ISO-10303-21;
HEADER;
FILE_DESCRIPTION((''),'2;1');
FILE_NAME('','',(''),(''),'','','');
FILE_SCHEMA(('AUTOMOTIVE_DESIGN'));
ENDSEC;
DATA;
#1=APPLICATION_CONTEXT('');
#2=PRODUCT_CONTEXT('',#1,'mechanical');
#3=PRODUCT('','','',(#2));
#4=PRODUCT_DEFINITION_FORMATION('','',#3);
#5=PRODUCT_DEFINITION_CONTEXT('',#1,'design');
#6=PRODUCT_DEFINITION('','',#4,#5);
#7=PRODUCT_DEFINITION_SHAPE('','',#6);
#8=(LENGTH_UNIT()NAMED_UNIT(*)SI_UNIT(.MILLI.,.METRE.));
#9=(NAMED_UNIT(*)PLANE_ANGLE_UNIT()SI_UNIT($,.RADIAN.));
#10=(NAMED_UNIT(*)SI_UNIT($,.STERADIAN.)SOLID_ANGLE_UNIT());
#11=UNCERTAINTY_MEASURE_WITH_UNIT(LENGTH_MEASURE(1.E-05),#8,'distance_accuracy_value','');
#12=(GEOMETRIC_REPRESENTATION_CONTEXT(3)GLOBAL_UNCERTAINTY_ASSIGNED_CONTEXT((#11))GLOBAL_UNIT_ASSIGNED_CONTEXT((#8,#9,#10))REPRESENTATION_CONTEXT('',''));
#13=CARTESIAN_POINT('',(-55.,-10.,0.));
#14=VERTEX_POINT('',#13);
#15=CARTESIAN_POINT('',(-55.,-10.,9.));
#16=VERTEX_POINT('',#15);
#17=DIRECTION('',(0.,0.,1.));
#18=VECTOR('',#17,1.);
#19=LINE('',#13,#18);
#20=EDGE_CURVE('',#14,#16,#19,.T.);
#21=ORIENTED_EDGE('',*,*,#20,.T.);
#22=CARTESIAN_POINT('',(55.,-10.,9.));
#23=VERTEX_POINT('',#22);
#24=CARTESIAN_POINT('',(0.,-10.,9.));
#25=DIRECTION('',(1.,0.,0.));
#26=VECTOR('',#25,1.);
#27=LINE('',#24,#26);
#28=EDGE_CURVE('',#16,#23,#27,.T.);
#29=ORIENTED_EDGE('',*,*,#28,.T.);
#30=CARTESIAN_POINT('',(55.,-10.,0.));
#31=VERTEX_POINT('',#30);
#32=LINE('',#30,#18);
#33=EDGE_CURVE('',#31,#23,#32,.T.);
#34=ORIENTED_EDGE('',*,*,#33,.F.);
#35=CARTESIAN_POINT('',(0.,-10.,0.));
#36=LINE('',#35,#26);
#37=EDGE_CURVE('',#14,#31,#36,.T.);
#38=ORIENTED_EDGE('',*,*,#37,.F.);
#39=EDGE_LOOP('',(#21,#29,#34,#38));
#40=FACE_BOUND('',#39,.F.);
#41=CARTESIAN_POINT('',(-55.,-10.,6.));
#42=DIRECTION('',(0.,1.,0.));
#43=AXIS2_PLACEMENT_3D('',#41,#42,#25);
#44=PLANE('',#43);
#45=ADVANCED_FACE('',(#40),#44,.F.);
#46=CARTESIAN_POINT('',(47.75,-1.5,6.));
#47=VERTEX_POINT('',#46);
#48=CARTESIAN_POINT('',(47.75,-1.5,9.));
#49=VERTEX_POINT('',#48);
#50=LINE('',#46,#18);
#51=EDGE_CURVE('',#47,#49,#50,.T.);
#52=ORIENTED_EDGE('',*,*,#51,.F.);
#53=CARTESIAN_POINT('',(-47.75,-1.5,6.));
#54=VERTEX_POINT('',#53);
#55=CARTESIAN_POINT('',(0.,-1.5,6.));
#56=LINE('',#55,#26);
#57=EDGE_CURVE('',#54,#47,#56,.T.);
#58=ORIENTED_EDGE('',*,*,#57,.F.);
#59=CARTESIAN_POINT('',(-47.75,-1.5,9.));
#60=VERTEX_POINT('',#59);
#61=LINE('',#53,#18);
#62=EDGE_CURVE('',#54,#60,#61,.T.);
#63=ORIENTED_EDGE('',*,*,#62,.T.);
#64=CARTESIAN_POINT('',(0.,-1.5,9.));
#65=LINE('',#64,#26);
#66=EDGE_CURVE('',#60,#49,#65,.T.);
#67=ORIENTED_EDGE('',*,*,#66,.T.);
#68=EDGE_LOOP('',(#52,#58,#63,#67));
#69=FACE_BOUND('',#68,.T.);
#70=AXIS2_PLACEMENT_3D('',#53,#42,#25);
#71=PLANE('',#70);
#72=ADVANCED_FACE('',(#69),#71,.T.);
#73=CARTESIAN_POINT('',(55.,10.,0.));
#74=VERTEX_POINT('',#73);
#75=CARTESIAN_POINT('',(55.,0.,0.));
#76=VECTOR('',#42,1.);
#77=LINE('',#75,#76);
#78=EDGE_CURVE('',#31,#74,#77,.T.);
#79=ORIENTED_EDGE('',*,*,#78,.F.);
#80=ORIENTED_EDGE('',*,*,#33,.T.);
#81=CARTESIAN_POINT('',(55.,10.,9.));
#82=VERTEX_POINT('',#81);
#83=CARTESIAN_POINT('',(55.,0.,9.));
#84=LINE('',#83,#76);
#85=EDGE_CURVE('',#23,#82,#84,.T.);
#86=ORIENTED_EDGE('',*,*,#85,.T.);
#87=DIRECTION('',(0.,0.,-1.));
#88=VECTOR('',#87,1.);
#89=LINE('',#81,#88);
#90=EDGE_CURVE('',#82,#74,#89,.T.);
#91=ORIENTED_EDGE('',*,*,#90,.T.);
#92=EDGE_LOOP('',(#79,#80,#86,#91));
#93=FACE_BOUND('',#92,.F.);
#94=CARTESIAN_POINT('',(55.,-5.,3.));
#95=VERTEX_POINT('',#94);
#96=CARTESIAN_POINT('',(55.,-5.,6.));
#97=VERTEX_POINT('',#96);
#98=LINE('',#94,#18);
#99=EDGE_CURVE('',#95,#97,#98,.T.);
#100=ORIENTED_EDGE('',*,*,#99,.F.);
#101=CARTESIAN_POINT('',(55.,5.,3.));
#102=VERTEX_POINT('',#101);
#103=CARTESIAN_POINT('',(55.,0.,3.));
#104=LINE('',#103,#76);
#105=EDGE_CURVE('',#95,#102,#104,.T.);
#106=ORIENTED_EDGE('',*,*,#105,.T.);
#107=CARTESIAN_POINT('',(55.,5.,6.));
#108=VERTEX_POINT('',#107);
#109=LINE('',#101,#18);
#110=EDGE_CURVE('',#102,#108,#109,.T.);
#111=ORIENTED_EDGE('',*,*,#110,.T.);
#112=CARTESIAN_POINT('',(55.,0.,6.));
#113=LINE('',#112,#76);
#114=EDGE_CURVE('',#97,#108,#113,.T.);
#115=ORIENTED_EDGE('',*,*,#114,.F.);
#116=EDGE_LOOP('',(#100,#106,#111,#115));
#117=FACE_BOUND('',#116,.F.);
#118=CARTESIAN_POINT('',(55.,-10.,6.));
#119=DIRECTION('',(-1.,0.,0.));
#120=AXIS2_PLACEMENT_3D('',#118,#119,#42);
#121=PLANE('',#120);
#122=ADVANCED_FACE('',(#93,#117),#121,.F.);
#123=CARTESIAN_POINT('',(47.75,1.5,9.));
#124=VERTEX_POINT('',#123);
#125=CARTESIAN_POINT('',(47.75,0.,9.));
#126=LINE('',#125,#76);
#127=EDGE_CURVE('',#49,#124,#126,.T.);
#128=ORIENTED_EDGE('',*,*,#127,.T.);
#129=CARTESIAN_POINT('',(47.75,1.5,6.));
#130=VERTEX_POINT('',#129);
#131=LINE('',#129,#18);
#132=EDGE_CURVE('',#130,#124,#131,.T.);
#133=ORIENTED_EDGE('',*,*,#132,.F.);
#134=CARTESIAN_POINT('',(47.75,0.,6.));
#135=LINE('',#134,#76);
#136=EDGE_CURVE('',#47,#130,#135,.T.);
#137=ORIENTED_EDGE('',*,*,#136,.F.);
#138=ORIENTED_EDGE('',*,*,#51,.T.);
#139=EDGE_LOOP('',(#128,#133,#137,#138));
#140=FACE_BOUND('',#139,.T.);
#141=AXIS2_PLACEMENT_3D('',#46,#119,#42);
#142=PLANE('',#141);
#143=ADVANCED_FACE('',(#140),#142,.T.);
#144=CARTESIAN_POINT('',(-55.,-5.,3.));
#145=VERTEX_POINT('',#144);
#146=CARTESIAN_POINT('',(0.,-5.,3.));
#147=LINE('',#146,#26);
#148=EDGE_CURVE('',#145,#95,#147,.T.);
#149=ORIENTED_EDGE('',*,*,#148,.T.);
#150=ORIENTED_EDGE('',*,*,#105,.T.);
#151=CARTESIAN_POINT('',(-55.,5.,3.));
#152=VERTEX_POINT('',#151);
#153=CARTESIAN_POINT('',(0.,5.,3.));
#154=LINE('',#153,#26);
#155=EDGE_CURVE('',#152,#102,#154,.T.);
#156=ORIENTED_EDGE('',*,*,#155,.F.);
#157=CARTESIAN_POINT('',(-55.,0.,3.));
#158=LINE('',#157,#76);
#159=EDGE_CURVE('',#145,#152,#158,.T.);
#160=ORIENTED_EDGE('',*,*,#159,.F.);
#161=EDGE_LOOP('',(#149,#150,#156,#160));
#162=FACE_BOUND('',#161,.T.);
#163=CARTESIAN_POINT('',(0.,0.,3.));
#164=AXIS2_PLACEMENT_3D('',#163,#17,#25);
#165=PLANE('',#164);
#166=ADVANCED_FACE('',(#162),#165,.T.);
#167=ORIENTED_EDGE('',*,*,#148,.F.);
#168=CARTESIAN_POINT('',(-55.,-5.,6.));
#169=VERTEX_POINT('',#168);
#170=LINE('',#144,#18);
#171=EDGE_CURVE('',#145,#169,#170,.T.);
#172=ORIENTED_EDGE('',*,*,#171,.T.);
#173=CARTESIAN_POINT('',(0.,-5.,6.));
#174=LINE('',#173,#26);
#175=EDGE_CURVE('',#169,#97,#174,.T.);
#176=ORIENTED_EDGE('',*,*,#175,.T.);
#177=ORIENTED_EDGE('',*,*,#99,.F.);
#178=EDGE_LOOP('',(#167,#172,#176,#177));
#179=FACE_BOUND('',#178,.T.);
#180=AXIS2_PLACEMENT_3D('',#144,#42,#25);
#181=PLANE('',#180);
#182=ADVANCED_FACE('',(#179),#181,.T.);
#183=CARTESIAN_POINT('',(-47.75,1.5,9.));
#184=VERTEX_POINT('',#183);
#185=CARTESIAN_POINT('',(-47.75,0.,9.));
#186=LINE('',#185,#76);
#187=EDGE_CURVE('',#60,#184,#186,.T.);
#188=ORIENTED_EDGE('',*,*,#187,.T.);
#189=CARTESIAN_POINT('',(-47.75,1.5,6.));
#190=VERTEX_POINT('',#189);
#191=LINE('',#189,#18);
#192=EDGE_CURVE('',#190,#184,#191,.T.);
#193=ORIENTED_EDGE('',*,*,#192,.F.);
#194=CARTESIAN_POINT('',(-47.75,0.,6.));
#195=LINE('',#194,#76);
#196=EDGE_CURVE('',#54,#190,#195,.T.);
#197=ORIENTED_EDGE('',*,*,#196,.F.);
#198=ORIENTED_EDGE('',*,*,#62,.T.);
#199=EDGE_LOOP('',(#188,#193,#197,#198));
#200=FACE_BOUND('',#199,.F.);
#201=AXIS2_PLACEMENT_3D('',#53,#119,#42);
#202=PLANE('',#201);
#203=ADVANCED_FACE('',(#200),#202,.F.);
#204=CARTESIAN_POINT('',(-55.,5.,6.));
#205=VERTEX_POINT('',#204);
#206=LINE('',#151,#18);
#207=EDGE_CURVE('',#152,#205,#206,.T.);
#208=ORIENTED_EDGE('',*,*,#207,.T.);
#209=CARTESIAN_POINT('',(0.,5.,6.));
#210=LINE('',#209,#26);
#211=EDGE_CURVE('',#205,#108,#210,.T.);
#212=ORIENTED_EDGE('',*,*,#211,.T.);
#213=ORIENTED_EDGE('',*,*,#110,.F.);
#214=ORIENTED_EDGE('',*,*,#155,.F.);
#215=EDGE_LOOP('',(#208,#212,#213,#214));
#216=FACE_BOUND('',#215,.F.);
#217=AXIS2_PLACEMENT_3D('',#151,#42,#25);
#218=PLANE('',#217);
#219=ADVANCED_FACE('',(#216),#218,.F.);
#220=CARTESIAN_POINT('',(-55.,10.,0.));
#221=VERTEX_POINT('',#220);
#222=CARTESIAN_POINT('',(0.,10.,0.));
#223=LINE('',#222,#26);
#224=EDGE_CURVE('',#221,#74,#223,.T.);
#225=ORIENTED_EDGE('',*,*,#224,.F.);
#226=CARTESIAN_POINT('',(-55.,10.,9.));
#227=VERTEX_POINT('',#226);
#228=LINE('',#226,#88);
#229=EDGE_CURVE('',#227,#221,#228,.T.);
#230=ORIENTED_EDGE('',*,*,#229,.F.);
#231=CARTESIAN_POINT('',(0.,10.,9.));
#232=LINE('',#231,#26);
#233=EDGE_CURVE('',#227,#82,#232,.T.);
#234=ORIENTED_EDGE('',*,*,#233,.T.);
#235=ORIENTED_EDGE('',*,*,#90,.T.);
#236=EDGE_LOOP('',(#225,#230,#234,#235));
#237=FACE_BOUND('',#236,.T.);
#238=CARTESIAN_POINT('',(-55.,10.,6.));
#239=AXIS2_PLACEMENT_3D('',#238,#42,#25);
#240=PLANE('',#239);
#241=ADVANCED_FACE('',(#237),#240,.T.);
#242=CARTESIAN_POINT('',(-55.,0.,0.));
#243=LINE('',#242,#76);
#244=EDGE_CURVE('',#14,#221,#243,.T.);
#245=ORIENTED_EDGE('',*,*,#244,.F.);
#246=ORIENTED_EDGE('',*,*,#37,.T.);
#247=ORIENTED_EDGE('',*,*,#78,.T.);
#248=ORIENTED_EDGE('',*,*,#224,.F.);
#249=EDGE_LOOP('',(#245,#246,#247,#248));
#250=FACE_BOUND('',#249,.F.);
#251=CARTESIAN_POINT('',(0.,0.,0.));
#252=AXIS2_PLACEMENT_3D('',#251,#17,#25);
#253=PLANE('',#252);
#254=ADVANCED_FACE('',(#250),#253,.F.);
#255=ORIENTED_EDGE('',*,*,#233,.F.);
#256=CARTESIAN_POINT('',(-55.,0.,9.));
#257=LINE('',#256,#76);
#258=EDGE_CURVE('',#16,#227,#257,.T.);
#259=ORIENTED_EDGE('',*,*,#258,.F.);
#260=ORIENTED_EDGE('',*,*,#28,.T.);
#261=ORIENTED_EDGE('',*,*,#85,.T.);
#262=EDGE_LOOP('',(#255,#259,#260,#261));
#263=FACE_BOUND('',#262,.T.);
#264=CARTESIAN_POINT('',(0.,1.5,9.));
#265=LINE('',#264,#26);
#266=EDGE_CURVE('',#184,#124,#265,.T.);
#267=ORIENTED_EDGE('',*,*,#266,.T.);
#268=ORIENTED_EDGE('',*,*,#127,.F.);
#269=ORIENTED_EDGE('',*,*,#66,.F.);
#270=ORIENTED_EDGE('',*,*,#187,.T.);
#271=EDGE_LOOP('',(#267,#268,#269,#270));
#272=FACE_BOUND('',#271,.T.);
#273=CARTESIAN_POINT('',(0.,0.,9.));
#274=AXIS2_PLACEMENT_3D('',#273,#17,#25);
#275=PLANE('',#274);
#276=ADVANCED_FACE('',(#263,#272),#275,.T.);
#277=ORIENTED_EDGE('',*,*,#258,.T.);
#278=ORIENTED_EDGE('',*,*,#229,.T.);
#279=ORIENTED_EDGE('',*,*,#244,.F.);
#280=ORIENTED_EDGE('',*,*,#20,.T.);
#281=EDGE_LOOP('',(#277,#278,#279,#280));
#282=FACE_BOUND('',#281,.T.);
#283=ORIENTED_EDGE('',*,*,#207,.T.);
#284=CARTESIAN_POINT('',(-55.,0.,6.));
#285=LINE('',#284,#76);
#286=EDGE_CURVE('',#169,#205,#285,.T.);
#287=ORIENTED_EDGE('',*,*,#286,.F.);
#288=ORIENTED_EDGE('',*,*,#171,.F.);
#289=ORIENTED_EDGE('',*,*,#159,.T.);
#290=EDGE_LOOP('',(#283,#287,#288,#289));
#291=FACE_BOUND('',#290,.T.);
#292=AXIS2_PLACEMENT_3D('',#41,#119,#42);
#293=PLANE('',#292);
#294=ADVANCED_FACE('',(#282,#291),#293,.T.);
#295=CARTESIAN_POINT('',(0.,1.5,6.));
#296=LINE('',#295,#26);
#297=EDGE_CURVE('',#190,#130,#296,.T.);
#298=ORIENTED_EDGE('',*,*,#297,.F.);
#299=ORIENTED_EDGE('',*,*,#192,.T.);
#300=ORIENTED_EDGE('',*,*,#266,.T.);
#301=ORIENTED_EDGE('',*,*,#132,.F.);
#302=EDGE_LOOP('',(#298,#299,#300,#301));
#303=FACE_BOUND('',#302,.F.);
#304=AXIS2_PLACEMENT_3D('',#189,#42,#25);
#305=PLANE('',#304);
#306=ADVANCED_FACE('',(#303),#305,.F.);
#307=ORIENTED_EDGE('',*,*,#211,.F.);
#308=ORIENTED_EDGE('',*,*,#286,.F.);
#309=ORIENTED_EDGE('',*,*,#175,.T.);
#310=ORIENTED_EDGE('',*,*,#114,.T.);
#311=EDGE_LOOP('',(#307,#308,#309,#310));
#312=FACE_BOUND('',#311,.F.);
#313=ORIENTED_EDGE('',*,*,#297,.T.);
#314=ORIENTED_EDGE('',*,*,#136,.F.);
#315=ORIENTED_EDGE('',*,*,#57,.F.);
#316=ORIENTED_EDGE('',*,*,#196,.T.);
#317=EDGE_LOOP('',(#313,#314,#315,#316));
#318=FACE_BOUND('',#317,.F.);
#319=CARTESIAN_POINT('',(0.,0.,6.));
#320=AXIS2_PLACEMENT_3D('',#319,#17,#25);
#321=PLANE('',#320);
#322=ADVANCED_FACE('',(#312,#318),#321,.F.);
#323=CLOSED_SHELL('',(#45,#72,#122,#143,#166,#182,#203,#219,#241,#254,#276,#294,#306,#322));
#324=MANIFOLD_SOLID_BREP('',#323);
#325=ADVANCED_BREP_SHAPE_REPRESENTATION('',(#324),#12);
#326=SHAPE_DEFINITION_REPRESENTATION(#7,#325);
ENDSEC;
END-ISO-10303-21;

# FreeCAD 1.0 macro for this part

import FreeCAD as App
import Part
import Sketcher

V = App.Vector
Q = App.Units.Quantity

doc = App.newDocument("Part")
body = doc.addObject("PartDesign::Body", "Body")

# Sketch on XY plane
sketch1 = body.newObject("Sketcher::SketchObject", "Sketch")
sketch1.AttachmentSupport = (doc.getObject("XY_Plane"), [""])
sketch1.MapMode = "FlatFace"
sketch1.addGeometry(Part.LineSegment(V(-55, 10, 0), V(-55, -10, 0)), False)
sketch1.addGeometry(Part.LineSegment(V(-55, -10, 0), V(55, -10, 0)), False)
sketch1.addGeometry(Part.LineSegment(V(55, -10, 0), V(55, 10, 0)), False)
sketch1.addGeometry(Part.LineSegment(V(55, 10, 0), V(-55, 10, 0)), False)
sketch1.addConstraint(Sketcher.Constraint("Coincident", 0, 2, 1, 1))
sketch1.addConstraint(Sketcher.Constraint("Coincident", 1, 2, 2, 1))
sketch1.addConstraint(Sketcher.Constraint("Coincident", 2, 2, 3, 1))
sketch1.addConstraint(Sketcher.Constraint("Coincident", 3, 2, 0, 1))
sketch1.addConstraint(Sketcher.Constraint("Vertical", 0))
sketch1.addConstraint(Sketcher.Constraint("Horizontal", 1))
sketch1.addConstraint(Sketcher.Constraint("Vertical", 2))
sketch1.addConstraint(Sketcher.Constraint("Horizontal", 3))
sketch1.addConstraint(Sketcher.Constraint("Symmetric", 0, 2, 2, 2, -1, 1))
sketch1.addConstraint(Sketcher.Constraint("DistanceX", 1, 1, 1, 2, Q("110 mm")))
sketch1.addConstraint(Sketcher.Constraint("DistanceY", 0, 2, 0, 1, Q("20 mm")))
pad1 = body.newObject("PartDesign::Pad", "Pad")
pad1.Profile = sketch1
pad1.Length = 3

# Sketch on XY plane
sketch2 = body.newObject("Sketcher::SketchObject", "Sketch001")
sketch2.AttachmentSupport = (doc.getObject("XY_Plane"), [""])
sketch2.MapMode = "FlatFace"
sketch2.AttachmentOffset = App.Placement(V(0, 0, 3), App.Rotation())
sketch2.addGeometry(Part.LineSegment(V(-55, 10, 0), V(-55, 5, 0)), False)
sketch2.addGeometry(Part.LineSegment(V(-55, 5, 0), V(55, 5, 0)), False)
sketch2.addGeometry(Part.LineSegment(V(55, 5, 0), V(55, 10, 0)), False)
sketch2.addGeometry(Part.LineSegment(V(55, 10, 0), V(-55, 10, 0)), False)
sketch2.addGeometry(Part.LineSegment(V(-55, -5, 0), V(-55, -10, 0)), False)
sketch2.addGeometry(Part.LineSegment(V(-55, -10, 0), V(55, -10, 0)), False)
sketch2.addGeometry(Part.LineSegment(V(55, -10, 0), V(55, -5, 0)), False)
sketch2.addGeometry(Part.LineSegment(V(55, -5, 0), V(-55, -5, 0)), False)
sketch2.addConstraint(Sketcher.Constraint("Coincident", 0, 2, 1, 1))
sketch2.addConstraint(Sketcher.Constraint("Coincident", 1, 2, 2, 1))
sketch2.addConstraint(Sketcher.Constraint("Coincident", 2, 2, 3, 1))
sketch2.addConstraint(Sketcher.Constraint("Coincident", 3, 2, 0, 1))
sketch2.addConstraint(Sketcher.Constraint("Coincident", 4, 2, 5, 1))
sketch2.addConstraint(Sketcher.Constraint("Coincident", 5, 2, 6, 1))
sketch2.addConstraint(Sketcher.Constraint("Coincident", 6, 2, 7, 1))
sketch2.addConstraint(Sketcher.Constraint("Coincident", 7, 2, 4, 1))
sketch2.addConstraint(Sketcher.Constraint("Vertical", 0))
sketch2.addConstraint(Sketcher.Constraint("Horizontal", 1))
sketch2.addConstraint(Sketcher.Constraint("Vertical", 2))
sketch2.addConstraint(Sketcher.Constraint("Horizontal", 3))
sketch2.addConstraint(Sketcher.Constraint("Vertical", 4))
sketch2.addConstraint(Sketcher.Constraint("Horizontal", 5))
sketch2.addConstraint(Sketcher.Constraint("Vertical", 6))
sketch2.addConstraint(Sketcher.Constraint("Horizontal", 7))
sketch2.addConstraint(Sketcher.Constraint("Symmetric", 2, 2, 4, 2, -1, 1))
sketch2.addConstraint(Sketcher.Constraint("Symmetric", 0, 2, 6, 2, -1, 1))
sketch2.addConstraint(Sketcher.Constraint("Vertical", 3, 2, 4, 2))
sketch2.addConstraint(Sketcher.Constraint("DistanceX", 1, 1, 1, 2, Q("110 mm")))
sketch2.addConstraint(Sketcher.Constraint("DistanceY", 0, 2, 0, 1, Q("5 mm")))
sketch2.addConstraint(Sketcher.Constraint("DistanceY", -1, 1, 0, 2, Q("5 mm")))
pad2 = body.newObject("PartDesign::Pad", "Pad001")
pad2.Profile = sketch2
pad2.Length = 3

# Sketch on XY plane
sketch3 = body.newObject("Sketcher::SketchObject", "Sketch002")
sketch3.AttachmentSupport = (doc.getObject("XY_Plane"), [""])
sketch3.MapMode = "FlatFace"
sketch3.AttachmentOffset = App.Placement(V(0, 0, 6), App.Rotation())
sketch3.addGeometry(Part.LineSegment(V(-55, 10, 0), V(-55, -10, 0)), False)
sketch3.addGeometry(Part.LineSegment(V(-55, -10, 0), V(55, -10, 0)), False)
sketch3.addGeometry(Part.LineSegment(V(55, -10, 0), V(55, 10, 0)), False)
sketch3.addGeometry(Part.LineSegment(V(55, 10, 0), V(-55, 10, 0)), False)
sketch3.addGeometry(Part.LineSegment(V(47.8, -1.5, 0), V(-47.8, -1.5, 0)), False)
sketch3.addGeometry(Part.LineSegment(V(-47.8, -1.5, 0), V(-47.8, 1.5, 0)), False)
sketch3.addGeometry(Part.LineSegment(V(-47.8, 1.5, 0), V(47.8, 1.5, 0)), False)
sketch3.addGeometry(Part.LineSegment(V(47.8, 1.5, 0), V(47.8, -1.5, 0)), False)
sketch3.addConstraint(Sketcher.Constraint("Coincident", 0, 2, 1, 1))
sketch3.addConstraint(Sketcher.Constraint("Coincident", 1, 2, 2, 1))
sketch3.addConstraint(Sketcher.Constraint("Coincident", 2, 2, 3, 1))
sketch3.addConstraint(Sketcher.Constraint("Coincident", 3, 2, 0, 1))
sketch3.addConstraint(Sketcher.Constraint("Coincident", 4, 2, 5, 1))
sketch3.addConstraint(Sketcher.Constraint("Coincident", 5, 2, 6, 1))
sketch3.addConstraint(Sketcher.Constraint("Coincident", 6, 2, 7, 1))
sketch3.addConstraint(Sketcher.Constraint("Coincident", 7, 2, 4, 1))
sketch3.addConstraint(Sketcher.Constraint("Vertical", 0))
sketch3.addConstraint(Sketcher.Constraint("Horizontal", 1))
sketch3.addConstraint(Sketcher.Constraint("Vertical", 2))
sketch3.addConstraint(Sketcher.Constraint("Horizontal", 3))
sketch3.addConstraint(Sketcher.Constraint("Horizontal", 4))
sketch3.addConstraint(Sketcher.Constraint("Vertical", 5))
sketch3.addConstraint(Sketcher.Constraint("Horizontal", 6))
sketch3.addConstraint(Sketcher.Constraint("Vertical", 7))
sketch3.addConstraint(Sketcher.Constraint("Symmetric", 0, 2, 2, 2, -1, 1))
sketch3.addConstraint(Sketcher.Constraint("Symmetric", 4, 2, 6, 2, -1, 1))
sketch3.addConstraint(Sketcher.Constraint("DistanceX", 1, 1, 1, 2, Q("110 mm")))
sketch3.addConstraint(Sketcher.Constraint("DistanceY", 0, 2, 0, 1, Q("20 mm")))
sketch3.addConstraint(Sketcher.Constraint("DistanceY", 5, 1, 5, 2, Q("3 mm")))
sketch3.addConstraint(Sketcher.Constraint("DistanceX", 4, 2, 4, 1, Q("95.5 mm")))
pad3 = body.newObject("PartDesign::Pad", "Pad002")
pad3.Profile = sketch3
pad3.Length = 3

doc.recompute()
